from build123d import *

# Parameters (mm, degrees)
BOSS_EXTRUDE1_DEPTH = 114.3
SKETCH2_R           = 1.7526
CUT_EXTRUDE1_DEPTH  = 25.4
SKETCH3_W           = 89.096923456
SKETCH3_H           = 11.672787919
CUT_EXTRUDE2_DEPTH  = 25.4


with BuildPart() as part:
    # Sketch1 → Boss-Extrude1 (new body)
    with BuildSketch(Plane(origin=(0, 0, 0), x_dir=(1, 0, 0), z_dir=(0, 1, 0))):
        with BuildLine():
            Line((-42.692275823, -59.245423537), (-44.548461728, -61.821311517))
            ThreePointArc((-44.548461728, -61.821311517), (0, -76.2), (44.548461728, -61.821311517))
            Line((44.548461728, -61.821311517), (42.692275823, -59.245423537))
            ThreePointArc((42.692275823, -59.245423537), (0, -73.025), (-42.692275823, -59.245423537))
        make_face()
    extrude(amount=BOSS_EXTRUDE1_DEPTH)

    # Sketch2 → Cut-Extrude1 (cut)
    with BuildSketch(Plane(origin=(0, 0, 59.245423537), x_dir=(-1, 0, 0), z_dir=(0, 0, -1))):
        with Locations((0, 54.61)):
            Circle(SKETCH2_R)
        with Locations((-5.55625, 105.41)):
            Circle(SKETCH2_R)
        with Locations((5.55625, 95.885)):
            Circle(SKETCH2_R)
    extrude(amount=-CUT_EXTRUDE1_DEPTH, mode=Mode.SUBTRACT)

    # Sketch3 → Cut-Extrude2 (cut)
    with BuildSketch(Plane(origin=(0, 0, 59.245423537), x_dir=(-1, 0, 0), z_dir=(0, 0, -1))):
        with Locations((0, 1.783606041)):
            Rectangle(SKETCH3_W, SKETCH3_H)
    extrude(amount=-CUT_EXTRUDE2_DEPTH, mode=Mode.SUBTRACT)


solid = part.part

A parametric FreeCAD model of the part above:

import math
import FreeCAD as App
import Part
import Sketcher
Q = App.Units.Quantity


def add_polygon(sketch, points):
    """Adds a closed chain of lines whose ends are joined by coincident constraints."""
    first, n = sketch.GeometryCount, len(points)
    for a, b in zip(points, points[1:] + points[:1]):
        sketch.addGeometry(Part.LineSegment(App.Vector(*a, 0), App.Vector(*b, 0)), False)
    for i in range(n):
        sketch.addConstraint(Sketcher.Constraint("Coincident", first + i, 2, first + (i + 1) % n, 1))

doc = App.newDocument("Part")
body = doc.addObject("PartDesign::Body", "Body")

# Sketch on XZ plane
sketch1 = body.newObject("Sketcher::SketchObject", "Sketch")
sketch1.AttachmentSupport = (doc.getObject("XZ_Plane"), [""])
sketch1.MapMode = "FlatFace"
sketch1.addGeometry([
    Part.LineSegment(App.Vector(-42.7, 59.2, 0), App.Vector(-44.5, 61.8, 0)),
    Part.ArcOfCircle(Part.Circle(App.Vector(0, 0, 0), App.Vector(0, 0, 1), 76.2), math.radians(54), math.radians(126)),
    Part.LineSegment(App.Vector(44.5, 61.8, 0), App.Vector(42.7, 59.2, 0)),
    Part.ArcOfCircle(Part.Circle(App.Vector(0, 0, 0), App.Vector(0, 0, 1), 73), math.radians(54), math.radians(126)),
], False)
sketch1.addConstraint([
    Sketcher.Constraint("Coincident", 0, 2, 1, 2),
    Sketcher.Constraint("Coincident", 1, 1, 2, 1),
    Sketcher.Constraint("Coincident", 2, 2, 3, 1),
    Sketcher.Constraint("Coincident", 3, 2, 0, 1),
    Sketcher.Constraint("Coincident", 1, 3, -1, 1),
    Sketcher.Constraint("Coincident", 3, 3, -1, 1),
    Sketcher.Constraint("Horizontal", 0, 2, 1, 1),
    Sketcher.Constraint("Horizontal", 2, 2, 3, 2),
    Sketcher.Constraint("Radius", 1, Q("3 in")),
    Sketcher.Constraint("Radius", 3, Q("2.875 in")),
    Sketcher.Constraint("DistanceX", 0, 2, -1, 1, 44.548462),
    Sketcher.Constraint("DistanceX", 3, 2, 2, 2, 85.384552),
])
pad1 = body.newObject("PartDesign::Pad", "Pad")
pad1.Profile = sketch1
pad1.Length = Q("4.5 in")
pad1.Reversed = True

# Sketch on XY plane
sketch2 = body.newObject("Sketcher::SketchObject", "Sketch001")
sketch2.AttachmentSupport = (doc.getObject("XY_Plane"), [""])
sketch2.MapMode = "FlatFace"
sketch2.AttachmentOffset = App.Placement(App.Vector(0, 0, 59.245424), App.Rotation())
sketch2.addGeometry([
    Part.Circle(App.Vector(0, 54.6, 0), App.Vector(0, 0, 1), 1.8),
    Part.Circle(App.Vector(5.6, 105.4, 0), App.Vector(0, 0, 1), 1.8),
    Part.Circle(App.Vector(-5.6, 95.9, 0), App.Vector(0, 0, 1), 1.8),
], False)
sketch2.addConstraint([
    Sketcher.Constraint("Equal", 0, 1),
    Sketcher.Constraint("Equal", 1, 2),
    Sketcher.Constraint("PointOnObject", 0, 3, -2),
    Sketcher.Constraint("Diameter", 0, Q("0.138 in")),
    Sketcher.Constraint("DistanceY", 0, 3, 1, 3, Q("2 in")),
    Sketcher.Constraint("DistanceY", -1, 1, 0, 3, Q("2.15 in")),
    Sketcher.Constraint("DistanceX", -1, 1, 1, 3, Q("0.21875 in")),
    Sketcher.Constraint("DistanceX", 2, 3, -1, 1, Q("0.21875 in")),
    Sketcher.Constraint("DistanceY", -1, 1, 2, 3, Q("3.775 in")),
])
pocket1 = body.newObject("PartDesign::Pocket", "Pocket")
pocket1.Profile = sketch2
pocket1.Length = Q("1 in")
pocket1.Reversed = True

# Sketch on XY plane
sketch3 = body.newObject("Sketcher::SketchObject", "Sketch002")
sketch3.AttachmentSupport = (doc.getObject("XY_Plane"), [""])
sketch3.MapMode = "FlatFace"
sketch3.AttachmentOffset = App.Placement(App.Vector(0, 0, 59.245424), App.Rotation())
add_polygon(sketch3, [(45, 8), (45, -4), (-45, -4), (-45, 8)])  # lines 0-3
sketch3.addConstraint([
    Sketcher.Constraint("Vertical", 0),
    Sketcher.Constraint("Horizontal", 1),
    Sketcher.Constraint("Vertical", 2),
    Sketcher.Constraint("Horizontal", 3),
    Sketcher.Constraint("DistanceY", -1, 1, 2, 2, Q("0.3 in")),
    Sketcher.Constraint("DistanceX", 1, 2, 1, 1, 89.096923),
    Sketcher.Constraint("DistanceY", 0, 2, 0, 1, 11.672788),
    Sketcher.Constraint("DistanceX", -1, 1, 0, 2, 44.548462),
])
pocket2 = body.newObject("PartDesign::Pocket", "Pocket001")
pocket2.Profile = sketch3
pocket2.Length = Q("1 in")
pocket2.Reversed = True

doc.recompute()
